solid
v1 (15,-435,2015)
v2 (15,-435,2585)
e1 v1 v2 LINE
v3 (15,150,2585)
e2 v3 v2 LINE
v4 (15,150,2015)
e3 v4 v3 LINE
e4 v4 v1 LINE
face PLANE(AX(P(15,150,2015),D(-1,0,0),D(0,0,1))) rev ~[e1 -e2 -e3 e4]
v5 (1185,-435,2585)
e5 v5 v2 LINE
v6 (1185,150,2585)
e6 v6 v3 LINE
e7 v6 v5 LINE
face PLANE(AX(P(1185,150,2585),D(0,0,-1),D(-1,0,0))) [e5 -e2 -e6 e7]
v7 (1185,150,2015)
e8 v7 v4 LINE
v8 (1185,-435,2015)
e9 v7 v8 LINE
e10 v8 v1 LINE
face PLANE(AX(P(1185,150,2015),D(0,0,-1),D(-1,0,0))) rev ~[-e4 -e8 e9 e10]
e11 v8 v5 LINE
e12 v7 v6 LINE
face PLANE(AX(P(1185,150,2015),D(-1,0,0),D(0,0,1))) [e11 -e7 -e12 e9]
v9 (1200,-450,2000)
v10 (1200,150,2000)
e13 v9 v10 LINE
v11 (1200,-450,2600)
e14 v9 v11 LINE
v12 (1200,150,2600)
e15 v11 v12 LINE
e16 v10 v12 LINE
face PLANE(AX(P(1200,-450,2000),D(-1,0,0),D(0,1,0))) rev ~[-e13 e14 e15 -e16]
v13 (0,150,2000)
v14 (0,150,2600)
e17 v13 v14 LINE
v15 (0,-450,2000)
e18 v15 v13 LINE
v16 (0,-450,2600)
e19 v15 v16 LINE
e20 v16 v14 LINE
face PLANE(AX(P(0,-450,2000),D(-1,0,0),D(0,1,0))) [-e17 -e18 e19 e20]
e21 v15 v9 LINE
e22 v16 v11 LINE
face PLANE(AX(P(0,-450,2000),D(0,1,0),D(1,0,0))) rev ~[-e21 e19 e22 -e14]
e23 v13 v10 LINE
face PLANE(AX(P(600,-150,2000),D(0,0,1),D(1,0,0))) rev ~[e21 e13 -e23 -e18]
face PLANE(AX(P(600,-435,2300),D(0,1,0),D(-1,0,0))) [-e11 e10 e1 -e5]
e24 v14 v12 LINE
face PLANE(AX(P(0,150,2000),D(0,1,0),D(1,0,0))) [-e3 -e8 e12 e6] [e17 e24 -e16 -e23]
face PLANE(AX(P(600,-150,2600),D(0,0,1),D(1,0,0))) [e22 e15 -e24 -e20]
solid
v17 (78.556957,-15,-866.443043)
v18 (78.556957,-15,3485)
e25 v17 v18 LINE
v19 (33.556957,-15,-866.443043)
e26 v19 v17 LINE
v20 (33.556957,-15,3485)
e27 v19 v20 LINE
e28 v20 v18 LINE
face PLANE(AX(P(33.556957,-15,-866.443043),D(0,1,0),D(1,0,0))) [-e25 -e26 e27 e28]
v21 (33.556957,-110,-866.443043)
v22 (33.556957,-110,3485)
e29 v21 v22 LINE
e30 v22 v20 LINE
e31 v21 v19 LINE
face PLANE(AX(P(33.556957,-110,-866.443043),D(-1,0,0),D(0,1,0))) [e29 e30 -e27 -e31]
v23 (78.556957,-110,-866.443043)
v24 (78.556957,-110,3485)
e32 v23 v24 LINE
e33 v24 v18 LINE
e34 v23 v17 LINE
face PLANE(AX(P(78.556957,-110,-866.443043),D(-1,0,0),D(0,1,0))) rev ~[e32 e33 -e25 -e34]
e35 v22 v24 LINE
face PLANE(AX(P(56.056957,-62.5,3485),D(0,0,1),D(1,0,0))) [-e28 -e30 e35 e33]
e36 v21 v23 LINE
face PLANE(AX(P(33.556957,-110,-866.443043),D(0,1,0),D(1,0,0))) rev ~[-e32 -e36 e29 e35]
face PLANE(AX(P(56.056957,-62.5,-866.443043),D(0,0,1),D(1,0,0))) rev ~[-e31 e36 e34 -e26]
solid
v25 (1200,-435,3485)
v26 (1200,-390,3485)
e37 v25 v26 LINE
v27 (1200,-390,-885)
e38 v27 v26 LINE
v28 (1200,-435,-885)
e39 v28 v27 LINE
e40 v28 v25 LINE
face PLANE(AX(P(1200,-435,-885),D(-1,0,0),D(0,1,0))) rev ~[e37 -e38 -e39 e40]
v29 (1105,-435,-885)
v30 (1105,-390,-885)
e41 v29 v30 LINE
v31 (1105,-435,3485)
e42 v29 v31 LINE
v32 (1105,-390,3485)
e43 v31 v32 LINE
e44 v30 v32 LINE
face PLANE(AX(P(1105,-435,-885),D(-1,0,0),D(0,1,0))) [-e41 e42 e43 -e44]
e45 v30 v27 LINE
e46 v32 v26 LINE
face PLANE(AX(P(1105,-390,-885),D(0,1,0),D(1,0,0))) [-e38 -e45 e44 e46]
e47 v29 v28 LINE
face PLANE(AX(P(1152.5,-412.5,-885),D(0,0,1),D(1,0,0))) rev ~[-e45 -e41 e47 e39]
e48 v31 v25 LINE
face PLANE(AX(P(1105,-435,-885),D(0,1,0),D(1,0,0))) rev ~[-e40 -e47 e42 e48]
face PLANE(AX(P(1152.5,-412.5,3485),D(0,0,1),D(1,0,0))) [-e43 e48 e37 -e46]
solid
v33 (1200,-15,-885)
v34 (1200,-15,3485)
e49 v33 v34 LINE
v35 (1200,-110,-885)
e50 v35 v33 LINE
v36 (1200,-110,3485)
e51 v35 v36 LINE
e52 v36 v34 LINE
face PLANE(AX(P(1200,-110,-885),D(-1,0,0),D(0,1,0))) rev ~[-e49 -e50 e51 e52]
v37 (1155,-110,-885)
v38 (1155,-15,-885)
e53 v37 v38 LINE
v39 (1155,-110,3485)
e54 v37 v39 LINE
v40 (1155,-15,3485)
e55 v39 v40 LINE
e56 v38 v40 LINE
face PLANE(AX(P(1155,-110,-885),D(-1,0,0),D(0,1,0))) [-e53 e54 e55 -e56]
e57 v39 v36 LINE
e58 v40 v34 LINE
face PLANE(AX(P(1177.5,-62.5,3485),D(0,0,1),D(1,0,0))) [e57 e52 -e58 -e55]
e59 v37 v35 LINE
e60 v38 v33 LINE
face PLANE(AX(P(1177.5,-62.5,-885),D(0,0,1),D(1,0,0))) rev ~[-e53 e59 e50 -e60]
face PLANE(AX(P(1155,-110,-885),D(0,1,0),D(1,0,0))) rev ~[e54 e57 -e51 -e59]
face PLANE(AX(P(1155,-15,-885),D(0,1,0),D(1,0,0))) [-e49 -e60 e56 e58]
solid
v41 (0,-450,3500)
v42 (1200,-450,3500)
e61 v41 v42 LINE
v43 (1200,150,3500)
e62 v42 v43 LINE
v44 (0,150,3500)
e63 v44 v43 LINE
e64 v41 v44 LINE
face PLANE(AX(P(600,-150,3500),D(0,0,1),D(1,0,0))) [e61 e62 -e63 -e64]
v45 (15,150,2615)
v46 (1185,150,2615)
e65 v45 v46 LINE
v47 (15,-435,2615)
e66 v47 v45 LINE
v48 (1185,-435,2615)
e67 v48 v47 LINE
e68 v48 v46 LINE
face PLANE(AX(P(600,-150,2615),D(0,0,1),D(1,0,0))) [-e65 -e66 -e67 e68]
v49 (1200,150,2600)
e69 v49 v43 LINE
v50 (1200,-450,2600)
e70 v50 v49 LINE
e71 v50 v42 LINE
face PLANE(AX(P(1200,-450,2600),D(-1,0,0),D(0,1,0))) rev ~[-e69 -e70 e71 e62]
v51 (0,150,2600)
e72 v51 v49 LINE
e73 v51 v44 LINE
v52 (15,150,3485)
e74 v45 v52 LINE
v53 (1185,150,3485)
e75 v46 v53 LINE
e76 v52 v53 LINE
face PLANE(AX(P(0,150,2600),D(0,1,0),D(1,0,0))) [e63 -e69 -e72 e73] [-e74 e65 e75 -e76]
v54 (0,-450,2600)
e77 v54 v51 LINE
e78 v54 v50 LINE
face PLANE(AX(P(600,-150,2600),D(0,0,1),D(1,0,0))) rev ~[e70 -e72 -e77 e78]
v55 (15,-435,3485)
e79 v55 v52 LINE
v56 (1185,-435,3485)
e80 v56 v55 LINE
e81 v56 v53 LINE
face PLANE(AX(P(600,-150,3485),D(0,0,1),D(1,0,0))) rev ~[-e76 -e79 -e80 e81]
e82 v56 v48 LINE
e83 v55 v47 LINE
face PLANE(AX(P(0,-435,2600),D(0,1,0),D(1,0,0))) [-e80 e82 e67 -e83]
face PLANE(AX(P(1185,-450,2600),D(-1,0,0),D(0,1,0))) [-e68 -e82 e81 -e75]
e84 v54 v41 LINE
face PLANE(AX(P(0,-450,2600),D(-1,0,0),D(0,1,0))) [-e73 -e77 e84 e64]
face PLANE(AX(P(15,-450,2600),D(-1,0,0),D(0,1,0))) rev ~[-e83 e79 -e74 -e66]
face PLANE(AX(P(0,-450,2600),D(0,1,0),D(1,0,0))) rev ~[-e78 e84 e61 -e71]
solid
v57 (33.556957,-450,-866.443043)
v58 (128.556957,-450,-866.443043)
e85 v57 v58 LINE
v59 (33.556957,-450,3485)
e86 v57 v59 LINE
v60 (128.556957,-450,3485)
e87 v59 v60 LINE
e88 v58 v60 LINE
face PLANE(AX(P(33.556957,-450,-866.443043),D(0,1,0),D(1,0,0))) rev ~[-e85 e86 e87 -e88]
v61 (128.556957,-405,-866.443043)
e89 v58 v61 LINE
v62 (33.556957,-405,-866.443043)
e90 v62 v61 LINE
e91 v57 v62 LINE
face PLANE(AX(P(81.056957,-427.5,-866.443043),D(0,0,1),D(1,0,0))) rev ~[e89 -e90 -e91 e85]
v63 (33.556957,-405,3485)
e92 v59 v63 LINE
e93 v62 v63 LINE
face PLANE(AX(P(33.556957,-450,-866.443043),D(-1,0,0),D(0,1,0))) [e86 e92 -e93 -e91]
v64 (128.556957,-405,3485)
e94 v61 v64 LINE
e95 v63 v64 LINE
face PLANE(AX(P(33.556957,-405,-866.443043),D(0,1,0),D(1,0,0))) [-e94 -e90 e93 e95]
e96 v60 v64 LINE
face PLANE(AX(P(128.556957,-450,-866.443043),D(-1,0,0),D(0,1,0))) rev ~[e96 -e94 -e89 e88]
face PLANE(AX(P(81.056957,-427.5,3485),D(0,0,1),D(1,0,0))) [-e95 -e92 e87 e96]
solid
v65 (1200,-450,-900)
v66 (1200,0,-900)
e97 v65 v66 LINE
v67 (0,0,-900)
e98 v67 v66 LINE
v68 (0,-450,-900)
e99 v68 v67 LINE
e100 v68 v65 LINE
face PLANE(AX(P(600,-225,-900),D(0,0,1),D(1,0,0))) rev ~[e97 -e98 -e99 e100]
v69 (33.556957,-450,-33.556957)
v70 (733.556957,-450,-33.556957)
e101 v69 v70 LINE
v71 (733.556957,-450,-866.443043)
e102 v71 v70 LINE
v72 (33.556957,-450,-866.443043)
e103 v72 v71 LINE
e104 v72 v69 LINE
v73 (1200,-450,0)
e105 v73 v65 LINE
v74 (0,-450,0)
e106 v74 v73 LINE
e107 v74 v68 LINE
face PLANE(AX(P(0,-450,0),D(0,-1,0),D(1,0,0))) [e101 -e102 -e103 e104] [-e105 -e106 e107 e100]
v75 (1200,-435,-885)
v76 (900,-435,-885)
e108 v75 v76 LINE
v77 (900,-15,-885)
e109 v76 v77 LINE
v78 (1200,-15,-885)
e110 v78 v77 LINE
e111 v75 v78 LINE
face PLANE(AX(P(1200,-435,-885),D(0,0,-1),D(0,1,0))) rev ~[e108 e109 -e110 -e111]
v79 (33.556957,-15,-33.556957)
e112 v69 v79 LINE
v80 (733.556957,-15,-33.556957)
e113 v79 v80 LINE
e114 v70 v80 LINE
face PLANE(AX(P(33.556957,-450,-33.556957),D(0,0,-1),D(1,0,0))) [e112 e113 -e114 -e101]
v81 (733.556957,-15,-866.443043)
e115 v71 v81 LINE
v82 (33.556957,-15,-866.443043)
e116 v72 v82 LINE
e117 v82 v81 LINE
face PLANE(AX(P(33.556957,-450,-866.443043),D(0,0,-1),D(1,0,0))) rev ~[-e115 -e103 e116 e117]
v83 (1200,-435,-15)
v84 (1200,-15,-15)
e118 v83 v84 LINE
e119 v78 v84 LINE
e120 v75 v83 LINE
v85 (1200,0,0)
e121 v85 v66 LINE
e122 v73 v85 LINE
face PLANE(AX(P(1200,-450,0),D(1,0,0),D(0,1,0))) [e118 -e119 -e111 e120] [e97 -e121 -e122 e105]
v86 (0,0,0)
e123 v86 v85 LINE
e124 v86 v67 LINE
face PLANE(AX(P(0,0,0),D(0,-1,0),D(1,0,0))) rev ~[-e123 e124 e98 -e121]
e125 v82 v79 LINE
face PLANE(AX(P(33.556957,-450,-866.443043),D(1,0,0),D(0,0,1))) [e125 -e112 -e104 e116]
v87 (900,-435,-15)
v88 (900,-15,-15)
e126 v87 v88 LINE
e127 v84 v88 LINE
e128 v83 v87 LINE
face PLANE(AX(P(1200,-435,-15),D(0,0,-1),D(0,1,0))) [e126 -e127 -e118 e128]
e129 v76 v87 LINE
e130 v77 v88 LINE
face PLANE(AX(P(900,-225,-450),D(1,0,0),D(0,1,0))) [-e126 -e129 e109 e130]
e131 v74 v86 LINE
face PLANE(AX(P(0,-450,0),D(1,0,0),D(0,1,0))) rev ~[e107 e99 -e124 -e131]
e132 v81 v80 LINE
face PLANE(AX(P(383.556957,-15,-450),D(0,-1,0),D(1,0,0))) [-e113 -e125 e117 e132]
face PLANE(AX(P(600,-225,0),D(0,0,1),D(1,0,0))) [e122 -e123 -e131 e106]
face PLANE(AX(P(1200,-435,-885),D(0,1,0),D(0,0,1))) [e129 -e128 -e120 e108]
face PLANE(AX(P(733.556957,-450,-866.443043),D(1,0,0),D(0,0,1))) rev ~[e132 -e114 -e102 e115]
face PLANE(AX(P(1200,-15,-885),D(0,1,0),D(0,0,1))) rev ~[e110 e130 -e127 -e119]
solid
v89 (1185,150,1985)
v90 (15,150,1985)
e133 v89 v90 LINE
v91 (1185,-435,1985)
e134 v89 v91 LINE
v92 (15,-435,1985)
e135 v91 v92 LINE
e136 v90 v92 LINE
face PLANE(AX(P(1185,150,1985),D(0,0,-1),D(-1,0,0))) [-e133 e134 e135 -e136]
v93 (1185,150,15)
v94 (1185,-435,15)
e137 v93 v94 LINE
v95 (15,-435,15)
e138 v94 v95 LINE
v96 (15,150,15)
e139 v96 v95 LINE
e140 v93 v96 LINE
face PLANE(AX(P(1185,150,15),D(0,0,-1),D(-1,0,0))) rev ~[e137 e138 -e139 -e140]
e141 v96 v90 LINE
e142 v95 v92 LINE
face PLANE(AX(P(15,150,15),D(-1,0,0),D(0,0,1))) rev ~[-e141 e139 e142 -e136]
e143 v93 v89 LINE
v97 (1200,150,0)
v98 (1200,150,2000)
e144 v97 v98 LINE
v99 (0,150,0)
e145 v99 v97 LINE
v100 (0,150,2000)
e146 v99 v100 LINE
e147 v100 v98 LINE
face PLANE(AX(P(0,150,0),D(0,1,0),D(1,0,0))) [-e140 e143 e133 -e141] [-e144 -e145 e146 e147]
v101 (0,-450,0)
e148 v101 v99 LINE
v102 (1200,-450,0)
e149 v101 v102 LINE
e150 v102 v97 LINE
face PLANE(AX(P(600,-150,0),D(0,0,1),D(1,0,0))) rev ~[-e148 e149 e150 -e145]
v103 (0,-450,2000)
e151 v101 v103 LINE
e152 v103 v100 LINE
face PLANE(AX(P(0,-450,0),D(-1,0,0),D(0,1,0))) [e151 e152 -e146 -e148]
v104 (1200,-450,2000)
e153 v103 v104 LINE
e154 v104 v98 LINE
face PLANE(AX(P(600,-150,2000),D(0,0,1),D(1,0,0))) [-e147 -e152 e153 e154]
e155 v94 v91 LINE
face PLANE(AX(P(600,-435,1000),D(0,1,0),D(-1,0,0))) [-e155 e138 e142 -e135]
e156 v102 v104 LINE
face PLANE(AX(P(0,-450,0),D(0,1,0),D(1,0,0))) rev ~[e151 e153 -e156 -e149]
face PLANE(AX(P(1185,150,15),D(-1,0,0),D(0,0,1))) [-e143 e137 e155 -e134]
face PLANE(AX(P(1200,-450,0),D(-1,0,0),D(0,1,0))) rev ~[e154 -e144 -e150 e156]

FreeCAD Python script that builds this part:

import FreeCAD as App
import Part
import Sketcher
Q = App.Units.Quantity


def faces_at(feature, points):
    """Names of the faces that lie closest to the given points."""
    faces = feature.Shape.Faces
    near = lambda p: min(range(len(faces)), key=lambda i: faces[i].distToShape(Part.Vertex(*p))[0])
    return sorted({f"Face{near(p) + 1}" for p in points})


def add_polygon(sketch, points):
    """Adds a closed chain of lines whose ends are joined by coincident constraints."""
    first, n = sketch.GeometryCount, len(points)
    for a, b in zip(points, points[1:] + points[:1]):
        sketch.addGeometry(Part.LineSegment(App.Vector(*a, 0), App.Vector(*b, 0)), False)
    for i in range(n):
        sketch.addConstraint(Sketcher.Constraint("Coincident", first + i, 2, first + (i + 1) % n, 1))

doc = App.newDocument("Part")
body = doc.addObject("PartDesign::Body", "Body")

sketch1 = body.newObject("Sketcher::SketchObject", "Sketch")
sketch1.AttachmentSupport = (doc.getObject("XY_Plane"), [""])
sketch1.MapMode = "FlatFace"
add_polygon(sketch1, [(0, 0), (0, -450), (1200, -450), (1200, 0)])
sketch1.addConstraint(Sketcher.Constraint("Vertical", 0))
sketch1.addConstraint(Sketcher.Constraint("Horizontal", 1))
sketch1.addConstraint(Sketcher.Constraint("Vertical", 2))
sketch1.addConstraint(Sketcher.Constraint("Horizontal", 3))
sketch1.addConstraint(Sketcher.Constraint("Coincident", 3, 2, -1, 1))
sketch1.addConstraint(Sketcher.Constraint("DistanceX", 1, 1, 1, 2, Q("1200 mm")))
sketch1.addConstraint(Sketcher.Constraint("DistanceY", 0, 2, 0, 1, Q("450 mm")))
pad1 = body.newObject("PartDesign::Pad", "Pad")
pad1.Profile = sketch1
pad1.Length = 900
pad1.Reversed = True

sketch2 = body.newObject("Sketcher::SketchObject", "Sketch001")
sketch2.AttachmentSupport = (doc.getObject("YZ_Plane"), [""])
sketch2.MapMode = "FlatFace"
sketch2.AttachmentOffset = App.Placement(App.Vector(0, 0, 1200), App.Rotation())
add_polygon(sketch2, [(-435, -15), (-435, -885), (-15, -885), (-15, -15)])
sketch2.addConstraint(Sketcher.Constraint("Vertical", 0))
sketch2.addConstraint(Sketcher.Constraint("Horizontal", 1))
sketch2.addConstraint(Sketcher.Constraint("Vertical", 2))
sketch2.addConstraint(Sketcher.Constraint("Horizontal", 3))
sketch2.addConstraint(Sketcher.Constraint("DistanceX", 1, 1, 1, 2, Q("420 mm")))
sketch2.addConstraint(Sketcher.Constraint("DistanceY", 0, 2, 0, 1, Q("870 mm")))
sketch2.addConstraint(Sketcher.Constraint("DistanceX", 0, 2, -1, 1, Q("435 mm")))
sketch2.addConstraint(Sketcher.Constraint("DistanceY", 0, 2, -1, 1, Q("885 mm")))
pocket1 = body.newObject("PartDesign::Pocket", "Pocket")
pocket1.Profile = sketch2
pocket1.Length = 300

sketch3 = body.newObject("Sketcher::SketchObject", "Sketch002")
sketch3.AttachmentSupport = (doc.getObject("XZ_Plane"), [""])
sketch3.MapMode = "FlatFace"
sketch3.AttachmentOffset = App.Placement(App.Vector(0, 0, 450), App.Rotation())
add_polygon(sketch3, [(33.556957, -33.556957), (33.556957, -866.443043), (733.556957, -866.443043), (733.556957, -33.556957)])
sketch3.addConstraint(Sketcher.Constraint("Vertical", 0))
sketch3.addConstraint(Sketcher.Constraint("Horizontal", 1))
sketch3.addConstraint(Sketcher.Constraint("Vertical", 2))
sketch3.addConstraint(Sketcher.Constraint("Horizontal", 3))
sketch3.addConstraint(Sketcher.Constraint("DistanceX", 1, 1, 1, 2, Q("700 mm")))
sketch3.addConstraint(Sketcher.Constraint("DistanceY", 0, 2, 0, 1, Q("832.886086 mm")))
sketch3.addConstraint(Sketcher.Constraint("DistanceX", -1, 1, 0, 2, Q("33.556957 mm")))
sketch3.addConstraint(Sketcher.Constraint("DistanceY", 0, 2, -1, 1, Q("866.443043 mm")))
pocket2 = body.newObject("PartDesign::Pocket", "Pocket001")
pocket2.Profile = sketch3
pocket2.Length = 435
body2 = doc.addObject("PartDesign::Body", "Body001")

sketch4 = body2.newObject("Sketcher::SketchObject", "Sketch003")
sketch4.AttachmentSupport = (doc.getObject("XY_Plane001"), [""])
sketch4.MapMode = "FlatFace"
add_polygon(sketch4, [(0, 150), (0, -450), (1200, -450), (1200, 150)])
sketch4.addConstraint(Sketcher.Constraint("Vertical", 0))
sketch4.addConstraint(Sketcher.Constraint("Horizontal", 1))
sketch4.addConstraint(Sketcher.Constraint("Vertical", 2))
sketch4.addConstraint(Sketcher.Constraint("Horizontal", 3))
sketch4.addConstraint(Sketcher.Constraint("PointOnObject", 0, 2, -2))
sketch4.addConstraint(Sketcher.Constraint("DistanceX", 1, 1, 1, 2, Q("1200 mm")))
sketch4.addConstraint(Sketcher.Constraint("DistanceY", 0, 2, 0, 1, Q("600 mm")))
sketch4.addConstraint(Sketcher.Constraint("DistanceY", 0, 2, -1, 1, Q("450 mm")))
pad2 = body2.newObject("PartDesign::Pad", "Pad001")
pad2.Profile = sketch4
pad2.Length = 2000

sketch5 = body2.newObject("Sketcher::SketchObject", "Sketch004")
sketch5.AttachmentSupport = (doc.getObject("XZ_Plane001"), [""])
sketch5.MapMode = "FlatFace"
sketch5.AttachmentOffset = App.Placement(App.Vector(0, 0, -150), App.Rotation())
add_polygon(sketch5, [(1185, 1985), (1185, 15), (15, 15), (15, 1985)])
sketch5.addConstraint(Sketcher.Constraint("Vertical", 0))
sketch5.addConstraint(Sketcher.Constraint("Horizontal", 1))
sketch5.addConstraint(Sketcher.Constraint("Vertical", 2))
sketch5.addConstraint(Sketcher.Constraint("Horizontal", 3))
sketch5.addConstraint(Sketcher.Constraint("DistanceX", 1, 2, 1, 1, Q("1170 mm")))
sketch5.addConstraint(Sketcher.Constraint("DistanceY", 0, 2, 0, 1, Q("1970 mm")))
sketch5.addConstraint(Sketcher.Constraint("DistanceX", -1, 1, 0, 2, Q("1185 mm")))
sketch5.addConstraint(Sketcher.Constraint("DistanceY", -1, 1, 0, 2, Q("15 mm")))
pocket3 = body2.newObject("PartDesign::Pocket", "Pocket002")
pocket3.Profile = sketch5
pocket3.Length = 585
pocket3.Reversed = True
body3 = doc.addObject("PartDesign::Body", "Body002")

sketch6 = body3.newObject("Sketcher::SketchObject", "Sketch005")
sketch6.AttachmentSupport = (doc.getObject("XY_Plane002"), [""])
sketch6.MapMode = "FlatFace"
sketch6.AttachmentOffset = App.Placement(App.Vector(0, 0, 2000), App.Rotation())
add_polygon(sketch6, [(0, 150), (0, -450), (1200, -450), (1200, 150)])
sketch6.addConstraint(Sketcher.Constraint("Vertical", 0))
sketch6.addConstraint(Sketcher.Constraint("Horizontal", 1))
sketch6.addConstraint(Sketcher.Constraint("Vertical", 2))
sketch6.addConstraint(Sketcher.Constraint("Horizontal", 3))
sketch6.addConstraint(Sketcher.Constraint("PointOnObject", 0, 2, -2))
sketch6.addConstraint(Sketcher.Constraint("DistanceX", 1, 1, 1, 2, Q("1200 mm")))
sketch6.addConstraint(Sketcher.Constraint("DistanceY", 0, 2, 0, 1, Q("600 mm")))
sketch6.addConstraint(Sketcher.Constraint("DistanceY", 0, 2, -1, 1, Q("450 mm")))
pad3 = body3.newObject("PartDesign::Pad", "Pad002")
pad3.Profile = sketch6
pad3.Length = 600

sketch7 = body3.newObject("Sketcher::SketchObject", "Sketch006")
sketch7.AttachmentSupport = (doc.getObject("XZ_Plane002"), [""])
sketch7.MapMode = "FlatFace"
sketch7.AttachmentOffset = App.Placement(App.Vector(0, 0, -150), App.Rotation())
add_polygon(sketch7, [(1185, 2585), (1185, 2015), (15, 2015), (15, 2585)])
sketch7.addConstraint(Sketcher.Constraint("Vertical", 0))
sketch7.addConstraint(Sketcher.Constraint("Horizontal", 1))
sketch7.addConstraint(Sketcher.Constraint("Vertical", 2))
sketch7.addConstraint(Sketcher.Constraint("Horizontal", 3))
sketch7.addConstraint(Sketcher.Constraint("DistanceX", 1, 2, 1, 1, Q("1170 mm")))
sketch7.addConstraint(Sketcher.Constraint("DistanceY", 0, 2, 0, 1, Q("570 mm")))
sketch7.addConstraint(Sketcher.Constraint("DistanceX", -1, 1, 0, 2, Q("1185 mm")))
sketch7.addConstraint(Sketcher.Constraint("DistanceY", -1, 1, 0, 2, Q("2015 mm")))
pocket4 = body3.newObject("PartDesign::Pocket", "Pocket003")
pocket4.Profile = sketch7
pocket4.Length = 585
pocket4.Reversed = True
body4 = doc.addObject("PartDesign::Body", "Body003")

sketch8 = body4.newObject("Sketcher::SketchObject", "Sketch007")
sketch8.AttachmentSupport = (doc.getObject("XY_Plane003"), [""])
sketch8.MapMode = "FlatFace"
sketch8.AttachmentOffset = App.Placement(App.Vector(0, 0, 2600), App.Rotation())
add_polygon(sketch8, [(0, 150), (0, -450), (1200, -450), (1200, 150)])
sketch8.addConstraint(Sketcher.Constraint("Vertical", 0))
sketch8.addConstraint(Sketcher.Constraint("Horizontal", 1))
sketch8.addConstraint(Sketcher.Constraint("Vertical", 2))
sketch8.addConstraint(Sketcher.Constraint("Horizontal", 3))
sketch8.addConstraint(Sketcher.Constraint("PointOnObject", 0, 2, -2))
sketch8.addConstraint(Sketcher.Constraint("DistanceX", 1, 1, 1, 2, Q("1200 mm")))
sketch8.addConstraint(Sketcher.Constraint("DistanceY", 0, 2, 0, 1, Q("600 mm")))
sketch8.addConstraint(Sketcher.Constraint("DistanceY", 0, 2, -1, 1, Q("450 mm")))
pad4 = body4.newObject("PartDesign::Pad", "Pad003")
pad4.Profile = sketch8
pad4.Length = 900
doc.recompute()

thickness = body4.newObject("PartDesign::Thickness", "Thickness")
thickness.Base = (pad4, faces_at(pad4, [(600, 150, 3050)]))
thickness.Value = 15
thickness.Reversed = True
thickness.Join = "Arc"
body5 = doc.addObject("PartDesign::Body", "Body004")

sketch9 = body5.newObject("Sketcher::SketchObject", "Sketch008")
sketch9.AttachmentSupport = (doc.getObject("XY_Plane004"), [""])
sketch9.MapMode = "FlatFace"
sketch9.AttachmentOffset = App.Placement(App.Vector(0, 0, -885), App.Rotation())
add_polygon(sketch9, [(1105, -390), (1105, -435), (1200, -435), (1200, -390)])
sketch9.addConstraint(Sketcher.Constraint("Vertical", 0))
sketch9.addConstraint(Sketcher.Constraint("Horizontal", 1))
sketch9.addConstraint(Sketcher.Constraint("Vertical", 2))
sketch9.addConstraint(Sketcher.Constraint("Horizontal", 3))
sketch9.addConstraint(Sketcher.Constraint("DistanceX", 1, 1, 1, 2, Q("95 mm")))
sketch9.addConstraint(Sketcher.Constraint("DistanceY", 0, 2, 0, 1, Q("45 mm")))
sketch9.addConstraint(Sketcher.Constraint("DistanceX", -1, 1, 0, 2, Q("1105 mm")))
sketch9.addConstraint(Sketcher.Constraint("DistanceY", 0, 2, -1, 1, Q("435 mm")))
pad5 = body5.newObject("PartDesign::Pad", "Pad004")
pad5.Profile = sketch9
pad5.Length = 4370
body6 = doc.addObject("PartDesign::Body", "Body005")

sketch10 = body6.newObject("Sketcher::SketchObject", "Sketch009")
sketch10.AttachmentSupport = (doc.getObject("XY_Plane005"), [""])
sketch10.MapMode = "FlatFace"
sketch10.AttachmentOffset = App.Placement(App.Vector(0, 0, -866.443043), App.Rotation())
add_polygon(sketch10, [(33.556957, -405), (33.556957, -450), (128.556957, -450), (128.556957, -405)])
sketch10.addConstraint(Sketcher.Constraint("Vertical", 0))
sketch10.addConstraint(Sketcher.Constraint("Horizontal", 1))
sketch10.addConstraint(Sketcher.Constraint("Vertical", 2))
sketch10.addConstraint(Sketcher.Constraint("Horizontal", 3))
sketch10.addConstraint(Sketcher.Constraint("DistanceX", 1, 1, 1, 2, Q("95 mm")))
sketch10.addConstraint(Sketcher.Constraint("DistanceY", 0, 2, 0, 1, Q("45 mm")))
sketch10.addConstraint(Sketcher.Constraint("DistanceY", 0, 2, -1, 1, Q("450 mm")))
sketch10.addConstraint(Sketcher.Constraint("DistanceX", -1, 1, 0, 2, Q("33.556957 mm")))
pad6 = body6.newObject("PartDesign::Pad", "Pad005")
pad6.Profile = sketch10
pad6.Length = 4351.443043
body7 = doc.addObject("PartDesign::Body", "Body006")

sketch11 = body7.newObject("Sketcher::SketchObject", "Sketch010")
sketch11.AttachmentSupport = (doc.getObject("XY_Plane006"), [""])
sketch11.MapMode = "FlatFace"
sketch11.AttachmentOffset = App.Placement(App.Vector(0, 0, -866.443043), App.Rotation())
add_polygon(sketch11, [(33.556957, -15), (33.556957, -110), (78.556957, -110), (78.556957, -15)])
sketch11.addConstraint(Sketcher.Constraint("Vertical", 0))
sketch11.addConstraint(Sketcher.Constraint("Horizontal", 1))
sketch11.addConstraint(Sketcher.Constraint("Vertical", 2))
sketch11.addConstraint(Sketcher.Constraint("Horizontal", 3))
sketch11.addConstraint(Sketcher.Constraint("DistanceX", 1, 1, 1, 2, Q("45 mm")))
sketch11.addConstraint(Sketcher.Constraint("DistanceY", 0, 2, 0, 1, Q("95 mm")))
sketch11.addConstraint(Sketcher.Constraint("DistanceY", 0, 2, -1, 1, Q("110 mm")))
sketch11.addConstraint(Sketcher.Constraint("DistanceX", -1, 1, 0, 2, Q("33.556957 mm")))
pad7 = body7.newObject("PartDesign::Pad", "Pad006")
pad7.Profile = sketch11
pad7.Length = 4351.443043
body8 = doc.addObject("PartDesign::Body", "Body007")

sketch12 = body8.newObject("Sketcher::SketchObject", "Sketch011")
sketch12.AttachmentSupport = (doc.getObject("XY_Plane007"), [""])
sketch12.MapMode = "FlatFace"
sketch12.AttachmentOffset = App.Placement(App.Vector(0, 0, -885), App.Rotation())
add_polygon(sketch12, [(1155, -15), (1155, -110), (1200, -110), (1200, -15)])
sketch12.addConstraint(Sketcher.Constraint("Vertical", 0))
sketch12.addConstraint(Sketcher.Constraint("Horizontal", 1))
sketch12.addConstraint(Sketcher.Constraint("Vertical", 2))
sketch12.addConstraint(Sketcher.Constraint("Horizontal", 3))
sketch12.addConstraint(Sketcher.Constraint("DistanceX", 1, 1, 1, 2, Q("45 mm")))
sketch12.addConstraint(Sketcher.Constraint("DistanceY", 0, 2, 0, 1, Q("95 mm")))
sketch12.addConstraint(Sketcher.Constraint("DistanceX", -1, 1, 0, 2, Q("1155 mm")))
sketch12.addConstraint(Sketcher.Constraint("DistanceY", 0, 2, -1, 1, Q("110 mm")))
pad8 = body8.newObject("PartDesign::Pad", "Pad007")
pad8.Profile = sketch12
pad8.Length = 4370

doc.recompute()
